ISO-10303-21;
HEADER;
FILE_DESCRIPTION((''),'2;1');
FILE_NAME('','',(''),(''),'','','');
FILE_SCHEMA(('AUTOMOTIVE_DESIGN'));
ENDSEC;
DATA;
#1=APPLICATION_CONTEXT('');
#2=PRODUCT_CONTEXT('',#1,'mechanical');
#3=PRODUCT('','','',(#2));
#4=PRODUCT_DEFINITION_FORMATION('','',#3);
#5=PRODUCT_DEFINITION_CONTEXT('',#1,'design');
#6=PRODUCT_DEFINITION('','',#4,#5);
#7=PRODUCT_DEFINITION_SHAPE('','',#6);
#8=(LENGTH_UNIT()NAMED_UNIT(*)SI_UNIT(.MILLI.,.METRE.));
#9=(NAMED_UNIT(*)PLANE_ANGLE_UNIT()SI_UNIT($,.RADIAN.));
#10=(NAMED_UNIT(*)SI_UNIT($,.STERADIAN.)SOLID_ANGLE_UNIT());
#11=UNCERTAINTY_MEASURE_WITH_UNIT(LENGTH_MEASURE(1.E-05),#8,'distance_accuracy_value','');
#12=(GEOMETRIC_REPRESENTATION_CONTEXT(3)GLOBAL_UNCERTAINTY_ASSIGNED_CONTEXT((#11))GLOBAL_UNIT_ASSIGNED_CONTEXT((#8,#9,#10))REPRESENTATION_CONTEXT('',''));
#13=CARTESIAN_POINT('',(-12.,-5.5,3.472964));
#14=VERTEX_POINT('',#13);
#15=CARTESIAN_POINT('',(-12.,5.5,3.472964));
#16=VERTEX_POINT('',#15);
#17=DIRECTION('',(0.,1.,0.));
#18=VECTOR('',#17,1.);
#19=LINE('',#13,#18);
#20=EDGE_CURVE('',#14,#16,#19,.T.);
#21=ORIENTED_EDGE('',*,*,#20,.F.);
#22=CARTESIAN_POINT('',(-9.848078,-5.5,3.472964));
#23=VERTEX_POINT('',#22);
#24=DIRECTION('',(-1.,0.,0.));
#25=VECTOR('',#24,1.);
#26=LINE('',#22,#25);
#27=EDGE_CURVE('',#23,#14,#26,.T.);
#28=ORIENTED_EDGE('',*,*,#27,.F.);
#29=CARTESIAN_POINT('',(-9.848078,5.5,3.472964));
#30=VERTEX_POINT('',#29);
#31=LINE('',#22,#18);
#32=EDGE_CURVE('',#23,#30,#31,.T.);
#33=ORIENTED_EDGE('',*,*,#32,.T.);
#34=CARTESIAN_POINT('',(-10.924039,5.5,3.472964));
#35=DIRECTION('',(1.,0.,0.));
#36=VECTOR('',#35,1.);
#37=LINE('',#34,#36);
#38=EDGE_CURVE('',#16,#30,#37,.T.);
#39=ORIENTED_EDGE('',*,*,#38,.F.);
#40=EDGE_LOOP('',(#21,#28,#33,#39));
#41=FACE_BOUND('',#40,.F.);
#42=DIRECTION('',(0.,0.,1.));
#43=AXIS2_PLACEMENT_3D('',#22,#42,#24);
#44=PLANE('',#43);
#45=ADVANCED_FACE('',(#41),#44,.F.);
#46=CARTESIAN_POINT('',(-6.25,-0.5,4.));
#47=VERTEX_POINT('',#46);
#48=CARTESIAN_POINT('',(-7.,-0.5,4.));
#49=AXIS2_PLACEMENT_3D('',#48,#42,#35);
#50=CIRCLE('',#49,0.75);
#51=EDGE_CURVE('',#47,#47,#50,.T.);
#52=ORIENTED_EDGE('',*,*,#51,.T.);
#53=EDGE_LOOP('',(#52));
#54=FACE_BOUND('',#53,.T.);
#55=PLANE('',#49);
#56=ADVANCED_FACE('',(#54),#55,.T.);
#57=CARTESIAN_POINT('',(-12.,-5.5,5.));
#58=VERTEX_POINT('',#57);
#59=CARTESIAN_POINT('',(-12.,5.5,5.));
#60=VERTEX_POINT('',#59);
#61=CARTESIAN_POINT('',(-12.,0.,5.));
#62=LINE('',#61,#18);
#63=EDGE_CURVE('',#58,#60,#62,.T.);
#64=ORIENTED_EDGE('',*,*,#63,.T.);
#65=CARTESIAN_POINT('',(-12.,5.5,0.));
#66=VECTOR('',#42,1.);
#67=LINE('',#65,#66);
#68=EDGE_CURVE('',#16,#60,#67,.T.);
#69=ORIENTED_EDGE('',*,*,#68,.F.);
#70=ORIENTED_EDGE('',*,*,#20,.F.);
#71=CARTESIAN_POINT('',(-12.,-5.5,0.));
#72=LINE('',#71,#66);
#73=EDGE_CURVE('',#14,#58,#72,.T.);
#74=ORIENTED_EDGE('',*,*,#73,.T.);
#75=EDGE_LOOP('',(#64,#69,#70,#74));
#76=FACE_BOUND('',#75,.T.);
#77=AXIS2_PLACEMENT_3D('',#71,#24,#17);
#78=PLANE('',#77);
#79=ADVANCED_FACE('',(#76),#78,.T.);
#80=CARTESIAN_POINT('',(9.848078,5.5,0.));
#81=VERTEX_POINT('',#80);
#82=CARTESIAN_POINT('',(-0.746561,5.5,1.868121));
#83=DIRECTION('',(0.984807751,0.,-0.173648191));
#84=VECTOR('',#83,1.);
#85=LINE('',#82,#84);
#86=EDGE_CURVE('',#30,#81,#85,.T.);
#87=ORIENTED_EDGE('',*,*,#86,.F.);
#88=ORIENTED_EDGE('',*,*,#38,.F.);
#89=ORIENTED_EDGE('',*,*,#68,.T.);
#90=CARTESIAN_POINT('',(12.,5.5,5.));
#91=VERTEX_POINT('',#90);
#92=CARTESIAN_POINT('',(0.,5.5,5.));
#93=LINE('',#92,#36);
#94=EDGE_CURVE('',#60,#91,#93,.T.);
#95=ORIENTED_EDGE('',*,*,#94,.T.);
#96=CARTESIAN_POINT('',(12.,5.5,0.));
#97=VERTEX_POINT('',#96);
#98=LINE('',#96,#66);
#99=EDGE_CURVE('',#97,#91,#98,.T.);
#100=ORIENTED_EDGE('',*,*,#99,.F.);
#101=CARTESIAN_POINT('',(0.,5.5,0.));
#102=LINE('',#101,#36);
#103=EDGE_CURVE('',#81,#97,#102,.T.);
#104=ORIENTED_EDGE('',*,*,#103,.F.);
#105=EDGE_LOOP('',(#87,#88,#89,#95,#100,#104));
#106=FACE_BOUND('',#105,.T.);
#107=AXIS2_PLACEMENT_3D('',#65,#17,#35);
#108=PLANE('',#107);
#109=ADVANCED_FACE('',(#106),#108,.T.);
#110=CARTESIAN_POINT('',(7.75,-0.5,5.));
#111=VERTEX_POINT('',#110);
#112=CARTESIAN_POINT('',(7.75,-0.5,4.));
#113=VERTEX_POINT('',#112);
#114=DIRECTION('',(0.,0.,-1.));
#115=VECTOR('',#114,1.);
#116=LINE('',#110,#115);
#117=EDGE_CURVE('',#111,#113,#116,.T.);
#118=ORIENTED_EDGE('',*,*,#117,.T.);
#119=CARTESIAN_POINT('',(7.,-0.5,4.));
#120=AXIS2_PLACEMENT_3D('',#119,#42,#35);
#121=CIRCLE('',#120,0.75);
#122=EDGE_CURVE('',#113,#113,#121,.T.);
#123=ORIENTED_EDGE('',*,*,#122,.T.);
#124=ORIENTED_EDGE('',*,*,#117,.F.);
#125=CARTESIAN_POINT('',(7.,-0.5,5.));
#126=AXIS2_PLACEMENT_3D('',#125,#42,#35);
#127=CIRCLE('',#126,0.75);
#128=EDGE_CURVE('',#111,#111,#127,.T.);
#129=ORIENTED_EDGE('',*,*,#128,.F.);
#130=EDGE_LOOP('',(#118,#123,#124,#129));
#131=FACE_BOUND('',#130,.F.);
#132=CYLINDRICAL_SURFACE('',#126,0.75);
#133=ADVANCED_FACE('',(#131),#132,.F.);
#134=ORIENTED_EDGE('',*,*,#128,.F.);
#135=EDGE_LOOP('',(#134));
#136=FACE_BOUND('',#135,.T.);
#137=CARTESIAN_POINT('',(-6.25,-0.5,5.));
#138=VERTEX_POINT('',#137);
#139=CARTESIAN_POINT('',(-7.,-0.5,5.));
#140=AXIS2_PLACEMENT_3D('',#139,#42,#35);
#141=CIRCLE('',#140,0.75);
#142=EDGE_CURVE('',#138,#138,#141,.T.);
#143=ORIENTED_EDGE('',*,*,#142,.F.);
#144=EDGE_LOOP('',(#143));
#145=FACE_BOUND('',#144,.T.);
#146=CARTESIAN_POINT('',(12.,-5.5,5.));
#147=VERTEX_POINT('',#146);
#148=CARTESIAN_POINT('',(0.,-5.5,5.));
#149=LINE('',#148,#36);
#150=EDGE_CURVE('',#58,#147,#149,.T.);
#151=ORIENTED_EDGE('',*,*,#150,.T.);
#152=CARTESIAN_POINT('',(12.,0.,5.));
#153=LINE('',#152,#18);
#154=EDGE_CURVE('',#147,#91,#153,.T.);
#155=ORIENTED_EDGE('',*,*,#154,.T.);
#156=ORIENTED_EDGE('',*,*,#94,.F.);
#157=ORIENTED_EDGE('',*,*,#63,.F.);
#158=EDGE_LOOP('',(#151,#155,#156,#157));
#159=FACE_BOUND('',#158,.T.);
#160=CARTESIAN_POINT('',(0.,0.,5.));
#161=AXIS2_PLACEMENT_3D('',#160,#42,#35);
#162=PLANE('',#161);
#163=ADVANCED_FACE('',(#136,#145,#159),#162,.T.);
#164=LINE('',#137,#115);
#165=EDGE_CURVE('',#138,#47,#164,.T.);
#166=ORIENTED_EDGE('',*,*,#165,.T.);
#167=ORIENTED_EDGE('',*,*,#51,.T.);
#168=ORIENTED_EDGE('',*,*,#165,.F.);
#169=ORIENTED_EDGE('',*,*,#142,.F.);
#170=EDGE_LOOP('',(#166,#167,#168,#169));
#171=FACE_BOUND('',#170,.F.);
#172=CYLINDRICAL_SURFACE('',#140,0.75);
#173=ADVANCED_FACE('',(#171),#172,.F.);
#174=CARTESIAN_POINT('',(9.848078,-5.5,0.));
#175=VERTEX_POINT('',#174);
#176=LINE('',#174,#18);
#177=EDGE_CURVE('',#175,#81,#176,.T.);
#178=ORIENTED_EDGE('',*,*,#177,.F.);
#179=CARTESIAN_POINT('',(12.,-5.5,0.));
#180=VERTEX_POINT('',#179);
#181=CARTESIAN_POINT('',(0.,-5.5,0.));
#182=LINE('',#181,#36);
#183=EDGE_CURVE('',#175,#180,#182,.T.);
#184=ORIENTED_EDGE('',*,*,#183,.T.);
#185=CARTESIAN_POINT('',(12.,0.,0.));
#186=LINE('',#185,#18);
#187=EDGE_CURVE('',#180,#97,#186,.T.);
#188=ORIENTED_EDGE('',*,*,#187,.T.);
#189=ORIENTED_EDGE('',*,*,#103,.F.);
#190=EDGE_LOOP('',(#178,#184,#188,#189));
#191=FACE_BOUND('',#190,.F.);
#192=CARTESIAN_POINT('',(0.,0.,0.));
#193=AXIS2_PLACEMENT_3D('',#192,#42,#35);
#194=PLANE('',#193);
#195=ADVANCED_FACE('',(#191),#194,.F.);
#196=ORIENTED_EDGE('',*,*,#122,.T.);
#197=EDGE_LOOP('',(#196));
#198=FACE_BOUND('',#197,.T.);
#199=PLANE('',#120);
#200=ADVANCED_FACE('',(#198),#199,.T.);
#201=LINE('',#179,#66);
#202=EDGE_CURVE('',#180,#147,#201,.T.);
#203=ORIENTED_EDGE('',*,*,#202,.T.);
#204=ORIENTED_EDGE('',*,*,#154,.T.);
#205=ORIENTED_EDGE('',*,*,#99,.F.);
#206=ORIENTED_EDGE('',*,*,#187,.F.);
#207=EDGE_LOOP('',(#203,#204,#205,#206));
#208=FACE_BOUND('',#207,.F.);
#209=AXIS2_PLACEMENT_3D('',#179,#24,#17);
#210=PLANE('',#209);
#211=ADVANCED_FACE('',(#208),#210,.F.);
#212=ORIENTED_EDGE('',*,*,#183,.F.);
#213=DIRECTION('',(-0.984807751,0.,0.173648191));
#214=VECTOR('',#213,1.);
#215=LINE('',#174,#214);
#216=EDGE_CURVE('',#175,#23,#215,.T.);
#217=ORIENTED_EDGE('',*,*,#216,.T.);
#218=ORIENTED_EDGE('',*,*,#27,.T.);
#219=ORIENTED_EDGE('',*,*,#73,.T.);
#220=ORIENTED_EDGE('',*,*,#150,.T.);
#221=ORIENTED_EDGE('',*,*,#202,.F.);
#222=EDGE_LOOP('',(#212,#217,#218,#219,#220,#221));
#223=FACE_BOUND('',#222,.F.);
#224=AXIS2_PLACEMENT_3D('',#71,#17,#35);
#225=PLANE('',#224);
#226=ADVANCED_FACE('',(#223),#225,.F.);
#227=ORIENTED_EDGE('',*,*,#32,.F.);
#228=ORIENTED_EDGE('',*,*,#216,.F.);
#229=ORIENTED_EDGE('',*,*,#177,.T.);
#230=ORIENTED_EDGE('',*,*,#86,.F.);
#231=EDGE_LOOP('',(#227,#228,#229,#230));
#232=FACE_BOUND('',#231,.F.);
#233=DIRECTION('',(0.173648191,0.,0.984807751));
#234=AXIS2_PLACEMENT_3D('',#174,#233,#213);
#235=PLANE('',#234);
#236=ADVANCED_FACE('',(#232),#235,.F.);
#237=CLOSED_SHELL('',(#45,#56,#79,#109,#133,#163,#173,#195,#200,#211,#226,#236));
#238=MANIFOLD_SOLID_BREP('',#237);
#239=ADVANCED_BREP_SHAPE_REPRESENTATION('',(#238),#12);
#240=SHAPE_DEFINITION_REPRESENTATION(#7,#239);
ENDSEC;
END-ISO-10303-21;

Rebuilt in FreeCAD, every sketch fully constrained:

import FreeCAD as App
import Part
import Sketcher
from FreeCAD import Vector
Q = App.Units.Quantity


def add_polygon(sketch, points):
    """Adds a closed chain of lines whose ends are joined by coincident constraints."""
    first, n = sketch.GeometryCount, len(points)
    for a, b in zip(points, points[1:] + points[:1]):
        sketch.addGeometry(Part.LineSegment(App.Vector(*a, 0), App.Vector(*b, 0)), False)
    for i in range(n):
        sketch.addConstraint(Sketcher.Constraint("Coincident", first + i, 2, first + (i + 1) % n, 1))

doc = App.newDocument("Part")
params = doc.addObject("Spreadsheet::Sheet", "Params")
for row, (alias, value) in enumerate([
    ("sketch1_width", "24 mm"),
    ("sketch1_height", "11 mm"),
    ("pad1_length", "5 mm"),
    ("sketch2_diameter", "1.5 mm"),
    ("pocket1_length", "1 mm"),
    ("sketch3_length", "20.000001 mm"),
], start=1):
    params.set(f"A{row}", alias)
    params.set(f"B{row}", "=" + value)
    params.setAlias(f"B{row}", alias)

body = doc.addObject("PartDesign::Body", "Body")

# Sketch on XY plane
sketch1 = body.newObject("Sketcher::SketchObject", "Sketch")
sketch1.AttachmentSupport = (doc.getObject("XY_Plane"), [""])
sketch1.MapMode = "FlatFace"
add_polygon(sketch1, [(-12, 6), (-12, -6), (12, -6), (12, 6)])  # lines 0-3
sketch1.addConstraint([
    Sketcher.Constraint("Vertical", 0),
    Sketcher.Constraint("Horizontal", 1),
    Sketcher.Constraint("Vertical", 2),
    Sketcher.Constraint("Horizontal", 3),
    Sketcher.Constraint("Symmetric", 0, 2, 2, 2, -1, 1),
    Sketcher.Constraint("DistanceX", 1, 1, 1, 2, Q("24 mm")),
    Sketcher.Constraint("DistanceY", 0, 2, 0, 1, Q("11 mm")),
])
sketch1.setExpression("Constraints[9]", "Params.sketch1_width")
sketch1.setExpression("Constraints[10]", "Params.sketch1_height")
pad1 = body.newObject("PartDesign::Pad", "Pad")
pad1.Profile = sketch1
pad1.setExpression("Length", "Params.pad1_length")

# Sketch on XY plane
sketch2 = body.newObject("Sketcher::SketchObject", "Sketch001")
sketch2.AttachmentSupport = (doc.getObject("XY_Plane"), [""])
sketch2.MapMode = "FlatFace"
sketch2.AttachmentOffset = App.Placement(Vector(0, 0, 5), App.Rotation())
sketch2.addGeometry([
    Part.Circle(Vector(-7, -0.5, 0), Vector(0, 0, 1), 0.8),
    Part.Circle(Vector(7, -0.5, 0), Vector(0, 0, 1), 0.8),
], False)
sketch2.addConstraint([
    Sketcher.Constraint("Equal", 0, 1),
    Sketcher.Constraint("Symmetric", 0, 3, 1, 3, -2),
    Sketcher.Constraint("Diameter", 0, Q("1.5 mm")),
    Sketcher.Constraint("DistanceX", 0, 3, -1, 1, Q("7 mm")),
    Sketcher.Constraint("DistanceY", 0, 3, -1, 1, Q("0.5 mm")),
])
sketch2.setExpression("Constraints[2]", "Params.sketch2_diameter")
pocket1 = body.newObject("PartDesign::Pocket", "Pocket")
pocket1.Profile = sketch2
pocket1.setExpression("Length", "Params.pocket1_length")

# Sketch on XZ plane
sketch3 = body.newObject("Sketcher::SketchObject", "Sketch002")
sketch3.AttachmentSupport = (doc.getObject("XZ_Plane"), [""])
sketch3.MapMode = "FlatFace"
sketch3.AttachmentOffset = App.Placement(Vector(0, 0, 5.5), App.Rotation())
add_polygon(sketch3, [(-12, 0), (9.8, 0), (-9.8, 3.5), (-12, 3.5)])  # lines 0-3
sketch3.addConstraint([
    Sketcher.Constraint("Horizontal", 0),
    Sketcher.Constraint("Horizontal", 2),
    Sketcher.Constraint("Vertical", 3),
    Sketcher.Constraint("PointOnObject", 0, 2, -1),
    Sketcher.Constraint("Angle", 1, Q("169.999999 deg")),
    Sketcher.Constraint("Distance", 1, Q("20.000001 mm")),
    Sketcher.Constraint("DistanceX", 2, 2, -1, 1, Q("12 mm")),
    Sketcher.Constraint("DistanceX", 0, 1, 0, 2, Q("21.848078 mm")),
])
sketch3.setExpression("Constraints[9]", "Params.sketch3_length")
pocket2 = body.newObject("PartDesign::Pocket", "Pocket001")
pocket2.Profile = sketch3
pocket2.Type = "ThroughAll"

doc.recompute()
